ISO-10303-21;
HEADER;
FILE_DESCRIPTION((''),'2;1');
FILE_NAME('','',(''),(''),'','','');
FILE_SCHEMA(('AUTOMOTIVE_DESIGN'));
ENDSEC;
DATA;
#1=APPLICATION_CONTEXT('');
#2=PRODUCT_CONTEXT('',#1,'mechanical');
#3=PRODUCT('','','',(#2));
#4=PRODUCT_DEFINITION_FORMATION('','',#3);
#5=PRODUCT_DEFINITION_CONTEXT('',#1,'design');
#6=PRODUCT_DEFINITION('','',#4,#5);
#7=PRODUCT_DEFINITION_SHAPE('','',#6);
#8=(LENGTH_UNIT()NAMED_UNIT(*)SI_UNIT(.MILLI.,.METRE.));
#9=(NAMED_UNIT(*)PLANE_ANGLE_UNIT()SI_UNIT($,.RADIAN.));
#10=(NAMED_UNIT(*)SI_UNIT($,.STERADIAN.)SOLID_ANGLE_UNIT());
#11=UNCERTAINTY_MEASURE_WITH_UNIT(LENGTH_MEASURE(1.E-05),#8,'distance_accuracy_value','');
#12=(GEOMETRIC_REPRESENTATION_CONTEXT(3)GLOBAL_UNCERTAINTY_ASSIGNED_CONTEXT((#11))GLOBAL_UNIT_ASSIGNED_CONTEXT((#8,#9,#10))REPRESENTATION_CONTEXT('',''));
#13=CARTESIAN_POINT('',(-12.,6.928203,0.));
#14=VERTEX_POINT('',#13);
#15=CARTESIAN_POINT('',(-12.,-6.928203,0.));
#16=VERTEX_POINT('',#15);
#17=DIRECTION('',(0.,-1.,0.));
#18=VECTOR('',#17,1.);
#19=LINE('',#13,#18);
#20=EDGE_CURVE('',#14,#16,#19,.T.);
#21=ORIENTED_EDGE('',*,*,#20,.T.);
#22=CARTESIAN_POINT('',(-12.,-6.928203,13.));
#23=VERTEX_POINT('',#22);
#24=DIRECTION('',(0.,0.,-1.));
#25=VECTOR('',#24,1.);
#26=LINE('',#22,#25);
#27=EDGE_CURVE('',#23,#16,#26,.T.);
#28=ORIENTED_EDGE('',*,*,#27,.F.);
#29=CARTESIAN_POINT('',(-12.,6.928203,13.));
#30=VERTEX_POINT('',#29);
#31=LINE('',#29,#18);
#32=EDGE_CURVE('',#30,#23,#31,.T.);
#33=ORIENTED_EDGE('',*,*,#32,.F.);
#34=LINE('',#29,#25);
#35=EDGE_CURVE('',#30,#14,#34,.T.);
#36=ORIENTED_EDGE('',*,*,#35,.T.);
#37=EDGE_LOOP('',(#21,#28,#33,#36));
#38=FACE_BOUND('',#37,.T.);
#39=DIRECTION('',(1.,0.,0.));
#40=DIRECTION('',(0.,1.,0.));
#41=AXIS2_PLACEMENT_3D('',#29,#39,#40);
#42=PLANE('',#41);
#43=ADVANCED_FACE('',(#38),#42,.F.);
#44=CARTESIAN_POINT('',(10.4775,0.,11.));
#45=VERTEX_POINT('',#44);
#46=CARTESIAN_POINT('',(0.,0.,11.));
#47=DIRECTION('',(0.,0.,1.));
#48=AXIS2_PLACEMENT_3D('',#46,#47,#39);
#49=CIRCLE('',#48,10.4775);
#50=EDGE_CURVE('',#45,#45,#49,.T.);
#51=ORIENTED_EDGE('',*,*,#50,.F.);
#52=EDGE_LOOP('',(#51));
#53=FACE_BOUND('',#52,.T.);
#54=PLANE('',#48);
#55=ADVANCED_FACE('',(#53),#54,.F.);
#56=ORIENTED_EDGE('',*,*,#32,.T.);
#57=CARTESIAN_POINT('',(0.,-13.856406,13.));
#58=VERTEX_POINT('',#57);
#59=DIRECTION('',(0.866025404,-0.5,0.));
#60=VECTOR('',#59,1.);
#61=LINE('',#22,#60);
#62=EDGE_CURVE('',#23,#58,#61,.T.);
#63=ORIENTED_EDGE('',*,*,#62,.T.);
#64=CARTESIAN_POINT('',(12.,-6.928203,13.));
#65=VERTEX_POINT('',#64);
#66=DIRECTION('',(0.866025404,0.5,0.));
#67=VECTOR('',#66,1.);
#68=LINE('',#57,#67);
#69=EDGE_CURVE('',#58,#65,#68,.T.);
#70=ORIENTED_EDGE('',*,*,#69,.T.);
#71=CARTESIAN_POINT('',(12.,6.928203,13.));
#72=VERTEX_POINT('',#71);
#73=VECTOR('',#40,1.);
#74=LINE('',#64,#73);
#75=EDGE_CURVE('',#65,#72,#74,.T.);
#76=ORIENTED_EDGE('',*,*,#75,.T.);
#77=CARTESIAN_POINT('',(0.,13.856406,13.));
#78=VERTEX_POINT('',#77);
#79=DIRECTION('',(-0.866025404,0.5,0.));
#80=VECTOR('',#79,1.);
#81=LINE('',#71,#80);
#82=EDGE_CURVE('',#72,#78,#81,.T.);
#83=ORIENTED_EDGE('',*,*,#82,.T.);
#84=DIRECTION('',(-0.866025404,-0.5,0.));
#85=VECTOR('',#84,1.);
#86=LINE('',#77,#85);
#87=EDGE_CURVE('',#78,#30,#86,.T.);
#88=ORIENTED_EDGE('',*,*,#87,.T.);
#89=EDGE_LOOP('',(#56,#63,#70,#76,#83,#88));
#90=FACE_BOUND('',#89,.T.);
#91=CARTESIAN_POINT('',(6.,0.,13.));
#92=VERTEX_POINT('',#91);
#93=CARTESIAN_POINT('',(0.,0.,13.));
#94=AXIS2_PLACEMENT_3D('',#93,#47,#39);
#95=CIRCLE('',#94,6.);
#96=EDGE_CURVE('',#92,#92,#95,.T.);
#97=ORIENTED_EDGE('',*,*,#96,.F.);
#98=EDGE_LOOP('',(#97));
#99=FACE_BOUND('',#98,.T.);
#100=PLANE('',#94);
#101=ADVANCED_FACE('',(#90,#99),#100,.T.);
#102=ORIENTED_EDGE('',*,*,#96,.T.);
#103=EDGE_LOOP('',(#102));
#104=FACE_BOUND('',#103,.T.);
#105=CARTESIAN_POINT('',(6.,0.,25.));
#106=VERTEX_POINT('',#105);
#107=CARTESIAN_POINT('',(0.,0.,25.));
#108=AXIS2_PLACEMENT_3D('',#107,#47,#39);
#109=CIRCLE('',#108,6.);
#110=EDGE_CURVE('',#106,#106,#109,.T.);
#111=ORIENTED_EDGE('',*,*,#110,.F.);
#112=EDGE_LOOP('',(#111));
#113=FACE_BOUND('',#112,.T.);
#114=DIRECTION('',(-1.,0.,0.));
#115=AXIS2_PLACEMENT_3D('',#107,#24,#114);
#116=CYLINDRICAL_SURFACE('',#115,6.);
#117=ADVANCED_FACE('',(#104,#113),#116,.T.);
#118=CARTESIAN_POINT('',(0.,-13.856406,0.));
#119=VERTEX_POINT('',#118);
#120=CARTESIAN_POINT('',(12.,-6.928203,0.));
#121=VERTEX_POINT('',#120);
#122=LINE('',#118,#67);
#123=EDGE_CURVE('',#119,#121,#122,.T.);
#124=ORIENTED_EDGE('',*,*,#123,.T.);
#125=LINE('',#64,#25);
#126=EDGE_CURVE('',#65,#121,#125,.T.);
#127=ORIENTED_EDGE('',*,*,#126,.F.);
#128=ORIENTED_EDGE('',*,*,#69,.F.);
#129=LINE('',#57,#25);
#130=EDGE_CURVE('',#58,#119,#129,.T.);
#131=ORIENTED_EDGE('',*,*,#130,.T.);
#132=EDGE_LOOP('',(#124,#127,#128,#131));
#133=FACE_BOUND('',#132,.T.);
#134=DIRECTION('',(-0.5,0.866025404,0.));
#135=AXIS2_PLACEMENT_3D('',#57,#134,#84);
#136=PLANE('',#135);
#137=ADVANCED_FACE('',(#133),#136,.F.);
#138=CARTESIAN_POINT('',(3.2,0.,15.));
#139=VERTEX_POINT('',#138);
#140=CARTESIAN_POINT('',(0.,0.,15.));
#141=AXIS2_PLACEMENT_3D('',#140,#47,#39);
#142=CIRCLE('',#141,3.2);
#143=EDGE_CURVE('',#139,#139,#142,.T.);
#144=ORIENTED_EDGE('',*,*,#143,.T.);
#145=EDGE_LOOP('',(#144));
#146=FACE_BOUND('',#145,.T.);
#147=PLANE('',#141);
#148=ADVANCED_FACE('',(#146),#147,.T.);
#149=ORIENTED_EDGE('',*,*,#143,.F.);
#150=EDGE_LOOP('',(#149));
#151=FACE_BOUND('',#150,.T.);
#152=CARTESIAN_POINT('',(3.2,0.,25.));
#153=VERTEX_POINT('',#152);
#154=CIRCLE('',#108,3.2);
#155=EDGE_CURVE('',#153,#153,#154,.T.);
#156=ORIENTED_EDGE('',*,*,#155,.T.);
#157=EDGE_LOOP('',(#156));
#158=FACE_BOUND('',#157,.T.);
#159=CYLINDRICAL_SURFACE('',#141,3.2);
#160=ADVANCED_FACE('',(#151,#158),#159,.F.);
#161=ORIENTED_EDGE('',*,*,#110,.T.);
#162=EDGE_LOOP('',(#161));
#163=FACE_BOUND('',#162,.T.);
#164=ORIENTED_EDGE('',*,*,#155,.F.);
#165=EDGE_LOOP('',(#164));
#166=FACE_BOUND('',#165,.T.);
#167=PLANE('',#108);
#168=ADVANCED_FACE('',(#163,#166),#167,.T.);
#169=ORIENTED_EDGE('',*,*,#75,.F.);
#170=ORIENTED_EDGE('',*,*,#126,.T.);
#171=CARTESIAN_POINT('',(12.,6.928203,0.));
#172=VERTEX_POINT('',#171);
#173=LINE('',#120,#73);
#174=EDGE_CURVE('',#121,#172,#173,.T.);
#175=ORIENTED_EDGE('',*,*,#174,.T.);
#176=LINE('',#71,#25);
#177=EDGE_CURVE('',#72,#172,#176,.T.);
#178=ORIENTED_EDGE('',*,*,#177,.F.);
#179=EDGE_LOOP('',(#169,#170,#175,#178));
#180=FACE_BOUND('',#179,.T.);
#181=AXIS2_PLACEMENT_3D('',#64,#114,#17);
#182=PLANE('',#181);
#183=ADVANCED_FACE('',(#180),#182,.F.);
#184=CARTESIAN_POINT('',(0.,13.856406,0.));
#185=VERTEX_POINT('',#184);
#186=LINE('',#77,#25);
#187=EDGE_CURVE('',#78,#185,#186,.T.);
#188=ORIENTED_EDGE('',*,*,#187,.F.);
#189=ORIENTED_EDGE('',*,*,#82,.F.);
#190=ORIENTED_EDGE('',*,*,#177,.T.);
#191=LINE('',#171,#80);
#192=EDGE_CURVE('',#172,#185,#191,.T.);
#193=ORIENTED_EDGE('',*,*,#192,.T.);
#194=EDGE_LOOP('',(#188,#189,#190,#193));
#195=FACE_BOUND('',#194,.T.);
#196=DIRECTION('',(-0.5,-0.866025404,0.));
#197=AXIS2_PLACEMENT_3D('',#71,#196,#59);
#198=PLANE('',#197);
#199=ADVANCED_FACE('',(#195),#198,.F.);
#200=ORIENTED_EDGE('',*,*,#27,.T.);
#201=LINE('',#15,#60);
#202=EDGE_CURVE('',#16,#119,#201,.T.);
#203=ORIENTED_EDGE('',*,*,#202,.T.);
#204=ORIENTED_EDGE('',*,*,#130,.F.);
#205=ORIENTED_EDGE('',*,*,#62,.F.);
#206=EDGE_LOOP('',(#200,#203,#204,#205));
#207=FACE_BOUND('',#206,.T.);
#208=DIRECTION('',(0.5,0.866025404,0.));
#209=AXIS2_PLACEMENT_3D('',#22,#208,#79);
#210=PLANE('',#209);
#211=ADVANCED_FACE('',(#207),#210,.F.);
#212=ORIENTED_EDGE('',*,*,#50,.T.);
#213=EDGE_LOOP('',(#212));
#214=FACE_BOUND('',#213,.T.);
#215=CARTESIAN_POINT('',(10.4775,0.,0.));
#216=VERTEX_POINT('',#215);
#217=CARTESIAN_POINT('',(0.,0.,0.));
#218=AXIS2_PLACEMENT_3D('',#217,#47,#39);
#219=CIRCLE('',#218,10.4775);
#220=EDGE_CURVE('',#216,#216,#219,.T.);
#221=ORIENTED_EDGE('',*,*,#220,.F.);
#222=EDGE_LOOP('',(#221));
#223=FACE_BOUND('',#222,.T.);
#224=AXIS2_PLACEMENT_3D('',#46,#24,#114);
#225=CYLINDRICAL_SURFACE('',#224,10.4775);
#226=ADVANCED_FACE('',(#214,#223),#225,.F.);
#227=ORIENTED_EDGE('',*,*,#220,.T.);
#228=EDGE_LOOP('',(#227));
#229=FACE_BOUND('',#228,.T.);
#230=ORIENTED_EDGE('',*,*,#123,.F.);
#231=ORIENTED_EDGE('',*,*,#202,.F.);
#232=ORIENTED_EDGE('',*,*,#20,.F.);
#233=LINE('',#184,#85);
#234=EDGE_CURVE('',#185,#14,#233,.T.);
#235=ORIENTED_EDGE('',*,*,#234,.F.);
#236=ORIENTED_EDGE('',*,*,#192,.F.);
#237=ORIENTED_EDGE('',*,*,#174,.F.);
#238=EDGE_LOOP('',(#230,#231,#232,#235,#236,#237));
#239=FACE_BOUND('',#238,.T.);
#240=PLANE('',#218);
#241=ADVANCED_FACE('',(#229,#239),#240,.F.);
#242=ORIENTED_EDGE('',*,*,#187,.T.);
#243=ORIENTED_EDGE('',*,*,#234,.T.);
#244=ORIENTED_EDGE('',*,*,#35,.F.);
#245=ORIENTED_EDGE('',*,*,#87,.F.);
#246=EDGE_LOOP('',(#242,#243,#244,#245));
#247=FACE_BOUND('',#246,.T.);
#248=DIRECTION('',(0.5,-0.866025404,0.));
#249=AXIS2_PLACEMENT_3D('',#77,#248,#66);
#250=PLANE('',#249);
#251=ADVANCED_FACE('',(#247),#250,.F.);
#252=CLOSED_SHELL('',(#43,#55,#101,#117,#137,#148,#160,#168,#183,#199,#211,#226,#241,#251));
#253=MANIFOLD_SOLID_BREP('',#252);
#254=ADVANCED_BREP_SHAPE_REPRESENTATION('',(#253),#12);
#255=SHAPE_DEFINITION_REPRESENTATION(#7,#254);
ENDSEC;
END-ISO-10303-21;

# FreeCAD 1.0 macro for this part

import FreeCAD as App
import Part
import Sketcher

V = App.Vector
Q = App.Units.Quantity


def add_polygon(sketch, points):
    """Adds a closed chain of lines whose ends are joined by coincident constraints."""
    first, n = sketch.GeometryCount, len(points)
    for a, b in zip(points, points[1:] + points[:1]):
        sketch.addGeometry(Part.LineSegment(App.Vector(*a, 0), App.Vector(*b, 0)), False)
    for i in range(n):
        sketch.addConstraint(Sketcher.Constraint("Coincident", first + i, 2, first + (i + 1) % n, 1))

doc = App.newDocument("Part")
body = doc.addObject("PartDesign::Body", "Body")

sketch1 = body.newObject("Sketcher::SketchObject", "Sketch")
sketch1.AttachmentSupport = (doc.getObject("XY_Plane"), [""])
sketch1.MapMode = "FlatFace"
add_polygon(sketch1, [(12, 6.928203), (0, 13.856406), (-12, 6.928203), (-12, -6.928203), (0, -13.856406), (12, -6.928203)])
sketch1.addConstraint(Sketcher.Constraint("Vertical", 2))
sketch1.addConstraint(Sketcher.Constraint("Vertical", 5))
sketch1.addConstraint(Sketcher.Constraint("Symmetric", 0, 2, 3, 2, -1, 1))
sketch1.addConstraint(Sketcher.Constraint("Symmetric", 1, 2, 4, 2, -1, 1))
sketch1.addConstraint(Sketcher.Constraint("PointOnObject", 0, 2, -2))
sketch1.addConstraint(Sketcher.Constraint("Parallel", 0, 3))
sketch1.addConstraint(Sketcher.Constraint("Horizontal", 2, 2, 4, 2))
sketch1.addConstraint(Sketcher.Constraint("Angle", 0, Q("150 deg")))
sketch1.addConstraint(Sketcher.Constraint("DistanceX", 1, 2, -1, 1, Q("12 mm")))
sketch1.addConstraint(Sketcher.Constraint("DistanceY", 2, 2, 2, 1, Q("13.856406 mm")))
pad1 = body.newObject("PartDesign::Pad", "Pad")
pad1.Profile = sketch1
pad1.Length = 13

sketch2 = body.newObject("Sketcher::SketchObject", "Sketch001")
sketch2.AttachmentSupport = (doc.getObject("XY_Plane"), [""])
sketch2.MapMode = "FlatFace"
sketch2.addGeometry(Part.Circle(V(0, 0, 0), V(0, 0, 1), 10.4775), False)
sketch2.addConstraint(Sketcher.Constraint("Coincident", 0, 3, -1, 1))
sketch2.addConstraint(Sketcher.Constraint("Diameter", 0, Q("20.955 mm")))
pocket1 = body.newObject("PartDesign::Pocket", "Pocket")
pocket1.Profile = sketch2
pocket1.Length = 11
pocket1.Reversed = True

sketch3 = body.newObject("Sketcher::SketchObject", "Sketch002")
sketch3.AttachmentSupport = (doc.getObject("XY_Plane"), [""])
sketch3.MapMode = "FlatFace"
sketch3.AttachmentOffset = App.Placement(V(0, 0, 13), App.Rotation())
sketch3.addGeometry(Part.Circle(V(0, 0, 0), V(0, 0, 1), 6), False)
sketch3.addConstraint(Sketcher.Constraint("Coincident", 0, 3, -1, 1))
sketch3.addConstraint(Sketcher.Constraint("Diameter", 0, Q("12 mm")))
pad2 = body.newObject("PartDesign::Pad", "Pad001")
pad2.Profile = sketch3
pad2.Length = 12

sketch4 = body.newObject("Sketcher::SketchObject", "Sketch003")
sketch4.AttachmentSupport = (doc.getObject("XY_Plane"), [""])
sketch4.MapMode = "FlatFace"
sketch4.AttachmentOffset = App.Placement(V(0, 0, 25), App.Rotation())
sketch4.addGeometry(Part.Circle(V(0, 0, 0), V(0, 0, 1), 3.2), False)
sketch4.addConstraint(Sketcher.Constraint("Coincident", 0, 3, -1, 1))
sketch4.addConstraint(Sketcher.Constraint("Diameter", 0, Q("6.4 mm")))
pocket2 = body.newObject("PartDesign::Pocket", "Pocket001")
pocket2.Profile = sketch4
pocket2.Length = 10

doc.recompute()
